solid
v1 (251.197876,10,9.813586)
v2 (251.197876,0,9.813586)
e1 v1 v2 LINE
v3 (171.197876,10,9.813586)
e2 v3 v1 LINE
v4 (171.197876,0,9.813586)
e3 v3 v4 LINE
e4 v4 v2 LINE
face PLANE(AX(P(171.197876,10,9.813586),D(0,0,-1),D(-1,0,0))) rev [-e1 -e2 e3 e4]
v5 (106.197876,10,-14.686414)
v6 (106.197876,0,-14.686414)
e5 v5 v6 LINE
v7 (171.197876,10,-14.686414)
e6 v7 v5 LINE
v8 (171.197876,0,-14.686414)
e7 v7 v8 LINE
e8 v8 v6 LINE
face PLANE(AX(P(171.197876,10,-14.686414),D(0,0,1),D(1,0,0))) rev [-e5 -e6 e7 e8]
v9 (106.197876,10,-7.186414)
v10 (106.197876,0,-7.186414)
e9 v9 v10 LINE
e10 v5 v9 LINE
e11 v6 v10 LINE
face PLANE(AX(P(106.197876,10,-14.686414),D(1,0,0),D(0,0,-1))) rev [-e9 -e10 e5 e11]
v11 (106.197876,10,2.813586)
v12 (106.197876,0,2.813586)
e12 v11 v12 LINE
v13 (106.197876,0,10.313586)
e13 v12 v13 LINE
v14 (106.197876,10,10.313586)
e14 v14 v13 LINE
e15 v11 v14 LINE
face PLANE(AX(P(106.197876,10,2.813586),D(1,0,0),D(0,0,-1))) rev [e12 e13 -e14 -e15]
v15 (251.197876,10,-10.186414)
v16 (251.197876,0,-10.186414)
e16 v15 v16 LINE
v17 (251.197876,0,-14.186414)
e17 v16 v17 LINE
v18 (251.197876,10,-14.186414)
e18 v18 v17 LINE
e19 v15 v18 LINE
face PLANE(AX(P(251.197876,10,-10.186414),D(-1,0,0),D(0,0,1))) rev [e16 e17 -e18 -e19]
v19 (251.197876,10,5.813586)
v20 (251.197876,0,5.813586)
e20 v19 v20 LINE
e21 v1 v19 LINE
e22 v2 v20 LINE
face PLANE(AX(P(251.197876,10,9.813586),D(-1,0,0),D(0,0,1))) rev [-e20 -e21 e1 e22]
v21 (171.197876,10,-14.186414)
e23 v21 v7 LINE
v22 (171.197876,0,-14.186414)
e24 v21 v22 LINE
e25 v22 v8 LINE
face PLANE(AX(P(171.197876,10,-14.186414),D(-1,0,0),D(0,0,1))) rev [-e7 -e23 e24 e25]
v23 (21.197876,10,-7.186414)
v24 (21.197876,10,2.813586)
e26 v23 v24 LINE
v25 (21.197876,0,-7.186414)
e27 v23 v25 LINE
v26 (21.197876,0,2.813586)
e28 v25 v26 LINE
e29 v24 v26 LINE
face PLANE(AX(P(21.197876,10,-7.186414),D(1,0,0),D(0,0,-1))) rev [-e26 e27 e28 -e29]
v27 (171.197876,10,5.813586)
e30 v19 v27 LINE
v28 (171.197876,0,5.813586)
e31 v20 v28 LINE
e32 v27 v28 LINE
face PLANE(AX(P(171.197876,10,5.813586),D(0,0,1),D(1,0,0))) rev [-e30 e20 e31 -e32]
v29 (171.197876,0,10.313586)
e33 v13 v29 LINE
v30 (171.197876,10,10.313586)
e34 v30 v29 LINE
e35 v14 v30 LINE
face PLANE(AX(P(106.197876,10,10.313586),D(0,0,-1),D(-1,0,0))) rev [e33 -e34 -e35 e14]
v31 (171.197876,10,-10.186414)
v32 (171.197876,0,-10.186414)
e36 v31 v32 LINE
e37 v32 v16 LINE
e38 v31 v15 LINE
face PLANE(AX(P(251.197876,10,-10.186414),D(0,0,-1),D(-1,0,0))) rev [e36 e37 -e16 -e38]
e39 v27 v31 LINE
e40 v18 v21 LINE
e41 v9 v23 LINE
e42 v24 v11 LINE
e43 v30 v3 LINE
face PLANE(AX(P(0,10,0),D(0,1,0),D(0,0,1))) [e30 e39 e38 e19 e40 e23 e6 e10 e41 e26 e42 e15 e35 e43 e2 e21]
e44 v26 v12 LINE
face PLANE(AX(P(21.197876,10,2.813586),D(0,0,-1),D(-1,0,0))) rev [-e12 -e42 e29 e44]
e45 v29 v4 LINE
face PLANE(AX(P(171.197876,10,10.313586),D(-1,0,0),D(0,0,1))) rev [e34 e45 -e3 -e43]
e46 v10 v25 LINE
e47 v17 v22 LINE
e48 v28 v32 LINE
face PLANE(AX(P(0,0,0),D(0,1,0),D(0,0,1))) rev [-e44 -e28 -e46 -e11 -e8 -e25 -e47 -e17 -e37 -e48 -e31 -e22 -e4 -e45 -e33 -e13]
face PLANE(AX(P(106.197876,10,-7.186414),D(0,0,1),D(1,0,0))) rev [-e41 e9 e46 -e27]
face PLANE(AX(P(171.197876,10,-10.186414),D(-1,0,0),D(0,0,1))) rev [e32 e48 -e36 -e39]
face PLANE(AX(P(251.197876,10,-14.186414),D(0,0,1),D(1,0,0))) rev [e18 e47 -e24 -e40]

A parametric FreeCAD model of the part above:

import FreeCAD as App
import Part
import Sketcher
from FreeCAD import Vector

doc = App.newDocument("Part")
params = doc.addObject("Spreadsheet::Sheet", "Params")
for row, (alias, value) in enumerate([
    ("sketch1_width", "80 mm"),
    ("sketch1_width2", "65 mm"),
    ("sketch1_width3", "85 mm"),
    ("sketch1_height", "4 mm"),
    ("sketch1_height2", "10 mm"),
    ("pad1_length", "10 mm"),
], start=1):
    params.set(f"A{row}", alias)
    params.set(f"B{row}", "=" + value)
    params.setAlias(f"B{row}", alias)

body = doc.addObject("PartDesign::Body", "Body")

# Sketch on XZ plane
sketch1 = body.newObject("Sketcher::SketchObject", "Sketch")
sketch1.AttachmentSupport = (doc.getObject("XZ_Plane"), [""])
sketch1.MapMode = "FlatFace"
sketch1.addGeometry(Part.LineSegment(Vector(171.2, -10.2, 0), Vector(251.2, -10.2, 0)), False)
sketch1.addGeometry(Part.LineSegment(Vector(251.2, -10.2, 0), Vector(251.2, -14.2, 0)), False)
sketch1.addGeometry(Part.LineSegment(Vector(251.2, -14.2, 0), Vector(171.2, -14.2, 0)), False)
sketch1.addGeometry(Part.LineSegment(Vector(171.2, -14.2, 0), Vector(171.2, -14.7, 0)), False)
sketch1.addGeometry(Part.LineSegment(Vector(171.2, -14.7, 0), Vector(106.2, -14.7, 0)), False)
sketch1.addGeometry(Part.LineSegment(Vector(106.2, -14.7, 0), Vector(106.2, -7.2, 0)), False)
sketch1.addGeometry(Part.LineSegment(Vector(106.2, -7.2, 0), Vector(21.2, -7.2, 0)), False)
sketch1.addGeometry(Part.LineSegment(Vector(21.2, -7.2, 0), Vector(21.2, 2.8, 0)), False)
sketch1.addGeometry(Part.LineSegment(Vector(21.2, 2.8, 0), Vector(106.2, 2.8, 0)), False)
sketch1.addGeometry(Part.LineSegment(Vector(106.2, 2.8, 0), Vector(106.2, 10.3, 0)), False)
sketch1.addGeometry(Part.LineSegment(Vector(106.2, 10.3, 0), Vector(171.2, 10.3, 0)), False)
sketch1.addGeometry(Part.LineSegment(Vector(171.2, 10.3, 0), Vector(171.2, 9.8, 0)), False)
sketch1.addGeometry(Part.LineSegment(Vector(171.2, 9.8, 0), Vector(251.2, 9.8, 0)), False)
sketch1.addGeometry(Part.LineSegment(Vector(251.2, 9.8, 0), Vector(251.2, 5.8, 0)), False)
sketch1.addGeometry(Part.LineSegment(Vector(251.2, 5.8, 0), Vector(171.2, 5.8, 0)), False)
sketch1.addGeometry(Part.LineSegment(Vector(171.2, 5.8, 0), Vector(171.2, -10.2, 0)), False)
sketch1.addConstraint(Sketcher.Constraint("Coincident", 0, 2, 1, 1))
sketch1.addConstraint(Sketcher.Constraint("Coincident", 1, 2, 2, 1))
sketch1.addConstraint(Sketcher.Constraint("Coincident", 2, 2, 3, 1))
sketch1.addConstraint(Sketcher.Constraint("Coincident", 3, 2, 4, 1))
sketch1.addConstraint(Sketcher.Constraint("Coincident", 4, 2, 5, 1))
sketch1.addConstraint(Sketcher.Constraint("Coincident", 5, 2, 6, 1))
sketch1.addConstraint(Sketcher.Constraint("Coincident", 6, 2, 7, 1))
sketch1.addConstraint(Sketcher.Constraint("Coincident", 7, 2, 8, 1))
sketch1.addConstraint(Sketcher.Constraint("Coincident", 8, 2, 9, 1))
sketch1.addConstraint(Sketcher.Constraint("Coincident", 9, 2, 10, 1))
sketch1.addConstraint(Sketcher.Constraint("Coincident", 10, 2, 11, 1))
sketch1.addConstraint(Sketcher.Constraint("Coincident", 11, 2, 12, 1))
sketch1.addConstraint(Sketcher.Constraint("Coincident", 12, 2, 13, 1))
sketch1.addConstraint(Sketcher.Constraint("Coincident", 13, 2, 14, 1))
sketch1.addConstraint(Sketcher.Constraint("Coincident", 14, 2, 15, 1))
sketch1.addConstraint(Sketcher.Constraint("Coincident", 15, 2, 0, 1))
sketch1.addConstraint(Sketcher.Constraint("Horizontal", 0))
sketch1.addConstraint(Sketcher.Constraint("Vertical", 1))
sketch1.addConstraint(Sketcher.Constraint("Horizontal", 2))
sketch1.addConstraint(Sketcher.Constraint("Vertical", 3))
sketch1.addConstraint(Sketcher.Constraint("Horizontal", 4))
sketch1.addConstraint(Sketcher.Constraint("Vertical", 5))
sketch1.addConstraint(Sketcher.Constraint("Horizontal", 6))
sketch1.addConstraint(Sketcher.Constraint("Vertical", 7))
sketch1.addConstraint(Sketcher.Constraint("Horizontal", 8))
sketch1.addConstraint(Sketcher.Constraint("Vertical", 9))
sketch1.addConstraint(Sketcher.Constraint("Horizontal", 10))
sketch1.addConstraint(Sketcher.Constraint("Vertical", 11))
sketch1.addConstraint(Sketcher.Constraint("Horizontal", 12))
sketch1.addConstraint(Sketcher.Constraint("Vertical", 13))
sketch1.addConstraint(Sketcher.Constraint("Horizontal", 14))
sketch1.addConstraint(Sketcher.Constraint("Vertical", 15))
sketch1.addConstraint(Sketcher.Constraint("Vertical", 5, 2, 8, 2))
sketch1.addConstraint(Sketcher.Constraint("Vertical", 3, 2, 10, 2))
sketch1.addConstraint(Sketcher.Constraint("Vertical", 1, 2, 12, 2))
sketch1.addConstraint(Sketcher.Constraint("Vertical", 11, 2, 14, 2))
sketch1.addConstraint(Sketcher.Constraint("Equal", 5, 9))
sketch1.addConstraint(Sketcher.Constraint("Equal", 3, 11))
sketch1.addConstraint(Sketcher.Constraint("Equal", 1, 13))
sketch1.addConstraint(Sketcher.Constraint("DistanceX", 0, 1, 0, 2, 80.0))
sketch1.addConstraint(Sketcher.Constraint("DistanceX", 4, 2, 4, 1, 65.0))
sketch1.addConstraint(Sketcher.Constraint("DistanceX", 6, 2, 6, 1, 85.0))
sketch1.addConstraint(Sketcher.Constraint("DistanceY", 1, 2, 1, 1, 4.0))
sketch1.addConstraint(Sketcher.Constraint("DistanceY", 7, 1, 7, 2, 10.0))
sketch1.addConstraint(Sketcher.Constraint("DistanceY", 15, 2, 15, 1, 16.0))
sketch1.addConstraint(Sketcher.Constraint("DistanceY", 3, 2, 3, 1, 0.5))
sketch1.addConstraint(Sketcher.Constraint("DistanceX", -1, 1, 0, 2, 251.197876))
sketch1.addConstraint(Sketcher.Constraint("DistanceY", 0, 2, -1, 1, 10.186414))
sketch1.setExpression("Constraints[39]", "Params.sketch1_width")
sketch1.setExpression("Constraints[40]", "Params.sketch1_width2")
sketch1.setExpression("Constraints[41]", "Params.sketch1_width3")
sketch1.setExpression("Constraints[42]", "Params.sketch1_height")
sketch1.setExpression("Constraints[43]", "Params.sketch1_height2")
pad1 = body.newObject("PartDesign::Pad", "Pad")
pad1.Profile = sketch1
pad1.setExpression("Length", "Params.pad1_length")
pad1.Reversed = True

doc.recompute()
